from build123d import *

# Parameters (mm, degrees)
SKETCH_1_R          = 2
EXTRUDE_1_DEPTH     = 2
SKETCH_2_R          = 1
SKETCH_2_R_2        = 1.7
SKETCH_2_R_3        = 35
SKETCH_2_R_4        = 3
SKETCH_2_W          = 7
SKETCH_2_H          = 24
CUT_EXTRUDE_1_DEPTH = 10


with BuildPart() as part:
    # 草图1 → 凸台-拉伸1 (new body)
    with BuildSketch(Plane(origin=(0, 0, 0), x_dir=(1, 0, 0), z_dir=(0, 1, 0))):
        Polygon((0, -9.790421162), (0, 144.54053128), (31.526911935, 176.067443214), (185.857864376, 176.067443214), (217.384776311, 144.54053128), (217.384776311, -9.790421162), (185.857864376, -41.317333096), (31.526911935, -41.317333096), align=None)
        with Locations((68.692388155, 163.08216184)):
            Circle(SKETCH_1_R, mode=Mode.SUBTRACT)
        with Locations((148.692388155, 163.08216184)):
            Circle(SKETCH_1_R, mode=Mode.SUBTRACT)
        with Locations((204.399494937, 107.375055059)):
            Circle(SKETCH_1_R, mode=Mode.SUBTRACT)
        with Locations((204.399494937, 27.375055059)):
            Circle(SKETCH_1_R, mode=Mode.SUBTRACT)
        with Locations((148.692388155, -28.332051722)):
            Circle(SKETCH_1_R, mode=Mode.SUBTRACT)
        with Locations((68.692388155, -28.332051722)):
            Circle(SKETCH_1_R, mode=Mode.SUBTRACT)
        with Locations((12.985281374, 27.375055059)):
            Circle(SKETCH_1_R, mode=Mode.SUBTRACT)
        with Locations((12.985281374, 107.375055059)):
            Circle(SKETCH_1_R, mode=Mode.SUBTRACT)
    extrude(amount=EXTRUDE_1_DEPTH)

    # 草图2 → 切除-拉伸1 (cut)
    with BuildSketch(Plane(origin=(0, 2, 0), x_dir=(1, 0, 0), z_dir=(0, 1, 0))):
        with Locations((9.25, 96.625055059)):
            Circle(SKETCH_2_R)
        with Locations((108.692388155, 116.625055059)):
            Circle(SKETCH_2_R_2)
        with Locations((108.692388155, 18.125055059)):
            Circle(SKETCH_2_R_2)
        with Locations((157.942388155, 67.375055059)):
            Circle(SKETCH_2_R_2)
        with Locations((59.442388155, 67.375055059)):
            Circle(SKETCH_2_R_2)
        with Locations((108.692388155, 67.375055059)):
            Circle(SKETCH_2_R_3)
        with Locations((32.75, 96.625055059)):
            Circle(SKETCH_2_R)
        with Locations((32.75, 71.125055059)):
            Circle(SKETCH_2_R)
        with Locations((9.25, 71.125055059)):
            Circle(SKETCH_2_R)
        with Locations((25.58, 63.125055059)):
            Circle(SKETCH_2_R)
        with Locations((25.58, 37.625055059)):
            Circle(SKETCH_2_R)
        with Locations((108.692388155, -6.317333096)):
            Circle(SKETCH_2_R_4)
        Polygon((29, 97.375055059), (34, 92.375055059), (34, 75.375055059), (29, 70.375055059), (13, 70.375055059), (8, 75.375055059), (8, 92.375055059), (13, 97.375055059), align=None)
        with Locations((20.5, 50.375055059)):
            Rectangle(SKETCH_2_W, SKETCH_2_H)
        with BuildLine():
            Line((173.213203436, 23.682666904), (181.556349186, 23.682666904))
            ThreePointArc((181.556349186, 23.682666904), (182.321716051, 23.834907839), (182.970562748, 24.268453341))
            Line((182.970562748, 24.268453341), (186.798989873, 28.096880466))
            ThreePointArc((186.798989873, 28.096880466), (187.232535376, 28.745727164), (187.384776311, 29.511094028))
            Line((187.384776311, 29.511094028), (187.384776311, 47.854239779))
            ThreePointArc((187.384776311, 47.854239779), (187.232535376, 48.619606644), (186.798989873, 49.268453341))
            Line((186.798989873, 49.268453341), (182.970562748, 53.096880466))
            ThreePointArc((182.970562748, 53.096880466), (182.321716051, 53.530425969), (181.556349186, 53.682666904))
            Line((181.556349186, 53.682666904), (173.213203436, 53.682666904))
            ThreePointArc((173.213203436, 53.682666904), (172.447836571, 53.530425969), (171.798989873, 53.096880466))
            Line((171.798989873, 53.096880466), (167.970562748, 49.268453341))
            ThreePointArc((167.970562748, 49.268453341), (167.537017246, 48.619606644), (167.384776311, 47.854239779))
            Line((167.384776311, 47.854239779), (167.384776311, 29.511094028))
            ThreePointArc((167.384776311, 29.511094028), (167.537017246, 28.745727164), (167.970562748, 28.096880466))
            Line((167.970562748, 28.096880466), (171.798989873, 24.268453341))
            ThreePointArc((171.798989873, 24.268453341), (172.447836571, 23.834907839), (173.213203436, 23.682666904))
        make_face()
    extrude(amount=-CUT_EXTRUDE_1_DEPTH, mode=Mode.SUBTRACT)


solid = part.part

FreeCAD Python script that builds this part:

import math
import FreeCAD as App
import Part
import Sketcher

V = App.Vector


def add_polygon(sketch, points):
    """Adds a closed chain of lines whose ends are joined by coincident constraints."""
    first, n = sketch.GeometryCount, len(points)
    for a, b in zip(points, points[1:] + points[:1]):
        sketch.addGeometry(Part.LineSegment(App.Vector(*a, 0), App.Vector(*b, 0)), False)
    for i in range(n):
        sketch.addConstraint(Sketcher.Constraint("Coincident", first + i, 2, first + (i + 1) % n, 1))

doc = App.newDocument("Part")
body = doc.addObject("PartDesign::Body", "Body")

# Sketch on XZ plane
sketch1 = body.newObject("Sketcher::SketchObject", "Sketch")
sketch1.AttachmentSupport = (doc.getObject("XZ_Plane"), [""])
sketch1.MapMode = "FlatFace"
add_polygon(sketch1, [(0, -144.5), (0, 9.8), (31.5, 41.3), (185.9, 41.3), (217.4, 9.8), (217.4, -144.5), (185.9, -176.1), (31.5, -176.1)])  # lines 0-7
sketch1.addGeometry(Part.Circle(V(148.7, 28.3, 0), V(0, 0, 1), 2), False)  # 8
sketch1.addGeometry(Part.Circle(V(204.4, -27.4, 0), V(0, 0, 1), 2), False)  # 9
sketch1.addGeometry(Part.Circle(V(68.7, 28.3, 0), V(0, 0, 1), 2), False)  # 10
sketch1.addGeometry(Part.Circle(V(13, -27.4, 0), V(0, 0, 1), 2), False)  # 11
sketch1.addGeometry(Part.Circle(V(204.4, -107.4, 0), V(0, 0, 1), 2), False)  # 12
sketch1.addGeometry(Part.Circle(V(148.7, -163.1, 0), V(0, 0, 1), 2), False)  # 13
sketch1.addGeometry(Part.Circle(V(13, -107.4, 0), V(0, 0, 1), 2), False)  # 14
sketch1.addGeometry(Part.Circle(V(68.7, -163.1, 0), V(0, 0, 1), 2), False)  # 15
sketch1.addConstraint(Sketcher.Constraint("Vertical", 0))
sketch1.addConstraint(Sketcher.Constraint("Horizontal", 2))
sketch1.addConstraint(Sketcher.Constraint("Vertical", 4))
sketch1.addConstraint(Sketcher.Constraint("Horizontal", 6))
sketch1.addConstraint(Sketcher.Constraint("Equal", 8, 9))
sketch1.addConstraint(Sketcher.Constraint("Equal", 9, 10))
sketch1.addConstraint(Sketcher.Constraint("Equal", 10, 11))
sketch1.addConstraint(Sketcher.Constraint("Equal", 11, 12))
sketch1.addConstraint(Sketcher.Constraint("Equal", 12, 13))
sketch1.addConstraint(Sketcher.Constraint("Equal", 13, 14))
sketch1.addConstraint(Sketcher.Constraint("Equal", 14, 15))
sketch1.addConstraint(Sketcher.Constraint("PointOnObject", 0, 2, -2))
sketch1.addConstraint(Sketcher.Constraint("Perpendicular", 1, 3))
sketch1.addConstraint(Sketcher.Constraint("Perpendicular", 3, 5))
sketch1.addConstraint(Sketcher.Constraint("Perpendicular", 5, 7))
sketch1.addConstraint(Sketcher.Constraint("Horizontal", 8, 3, 10, 3))
sketch1.addConstraint(Sketcher.Constraint("Horizontal", 9, 3, 11, 3))
sketch1.addConstraint(Sketcher.Constraint("Horizontal", 12, 3, 14, 3))
sketch1.addConstraint(Sketcher.Constraint("Horizontal", 13, 3, 15, 3))
sketch1.addConstraint(Sketcher.Constraint("Horizontal", 0, 2, 3, 2))
sketch1.addConstraint(Sketcher.Constraint("Horizontal", 4, 2, 7, 2))
sketch1.addConstraint(Sketcher.Constraint("Vertical", 9, 3, 12, 3))
sketch1.addConstraint(Sketcher.Constraint("Vertical", 8, 3, 13, 3))
sketch1.addConstraint(Sketcher.Constraint("Vertical", 11, 3, 14, 3))
sketch1.addConstraint(Sketcher.Constraint("Vertical", 10, 3, 15, 3))
sketch1.addConstraint(Sketcher.Constraint("Vertical", 2, 2, 5, 2))
sketch1.addConstraint(Sketcher.Constraint("Vertical", 1, 2, 6, 2))
sketch1.addConstraint(Sketcher.Constraint("Equal", 6, 0))
sketch1.addConstraint(Sketcher.Constraint("Diameter", 8, 4.0))
sketch1.addConstraint(Sketcher.Constraint("DistanceX", 10, 3, 8, 3, 80.0))
sketch1.addConstraint(Sketcher.Constraint("DistanceY", 12, 3, 9, 3, 80.0))
sketch1.addConstraint(Sketcher.Constraint("DistanceX", 2, 1, 2, 2, 154.330952))
sketch1.addConstraint(Sketcher.Constraint("DistanceX", -1, 1, 8, 3, 148.692388))
sketch1.addConstraint(Sketcher.Constraint("DistanceY", -1, 1, 8, 3, 28.332052))
sketch1.addConstraint(Sketcher.Constraint("DistanceX", -1, 1, 11, 3, 12.985281))
sketch1.addConstraint(Sketcher.Constraint("DistanceY", 13, 3, -1, 1, 163.082162))
sketch1.addConstraint(Sketcher.Constraint("DistanceY", -1, 1, 0, 2, 9.790421))
sketch1.addConstraint(Sketcher.Constraint("DistanceX", -1, 1, 1, 2, 31.526912))
sketch1.addConstraint(Sketcher.Constraint("DistanceY", 11, 3, 1, 2, 68.692388))
sketch1.addConstraint(Sketcher.Constraint("DistanceX", 2, 2, 9, 3, 18.541631))
pad1 = body.newObject("PartDesign::Pad", "Pad")
pad1.Profile = sketch1
pad1.Length = 2
pad1.Reversed = True

# Sketch on XZ plane
sketch2 = body.newObject("Sketcher::SketchObject", "Sketch001")
sketch2.AttachmentSupport = (doc.getObject("XZ_Plane"), [""])
sketch2.MapMode = "FlatFace"
sketch2.AttachmentOffset = App.Placement(V(0, 0, -2), App.Rotation())
sketch2.addGeometry(Part.Circle(V(9.2, -96.6, 0), V(0, 0, 1), 1), False)  # 0
sketch2.addGeometry(Part.Circle(V(108.7, -116.6, 0), V(0, 0, 1), 1.7), False)  # 1
sketch2.addGeometry(Part.Circle(V(108.7, -18.1, 0), V(0, 0, 1), 1.7), False)  # 2
sketch2.addGeometry(Part.Circle(V(157.9, -67.4, 0), V(0, 0, 1), 1.7), False)  # 3
sketch2.addGeometry(Part.Circle(V(59.4, -67.4, 0), V(0, 0, 1), 1.7), False)  # 4
sketch2.addGeometry(Part.Circle(V(108.7, -67.4, 0), V(0, 0, 1), 35), False)  # 5
sketch2.addGeometry(Part.Circle(V(32.8, -96.6, 0), V(0, 0, 1), 1), False)  # 6
sketch2.addGeometry(Part.Circle(V(32.8, -71.1, 0), V(0, 0, 1), 1), False)  # 7
sketch2.addGeometry(Part.Circle(V(9.2, -71.1, 0), V(0, 0, 1), 1), False)  # 8
sketch2.addGeometry(Part.Circle(V(25.6, -63.1, 0), V(0, 0, 1), 1), False)  # 9
sketch2.addGeometry(Part.Circle(V(25.6, -37.6, 0), V(0, 0, 1), 1), False)  # 10
sketch2.addGeometry(Part.Circle(V(108.7, 6.3, 0), V(0, 0, 1), 3), False)  # 11
add_polygon(sketch2, [(34, -92.4), (29, -97.4), (13, -97.4), (8, -92.4), (8, -75.4), (13, -70.4), (29, -70.4), (34, -75.4)])  # lines 12-19
add_polygon(sketch2, [(17, -62.4), (17, -38.4), (24, -38.4), (24, -62.4)])  # lines 20-23
sketch2.addGeometry(Part.LineSegment(V(173.2, -23.7, 0), V(181.6, -23.7, 0)), False)  # 24
sketch2.addGeometry(Part.ArcOfCircle(Part.Circle(V(181.6, -25.7, 0), V(0, 0, 1), 2), math.radians(45), math.radians(90)), False)  # 25
sketch2.addGeometry(Part.LineSegment(V(183, -24.3, 0), V(186.8, -28.1, 0)), False)  # 26
sketch2.addGeometry(Part.ArcOfCircle(Part.Circle(V(185.4, -29.5, 0), V(0, 0, 1), 2), math.radians(0), math.radians(45)), False)  # 27
sketch2.addGeometry(Part.LineSegment(V(187.4, -29.5, 0), V(187.4, -47.9, 0)), False)  # 28
sketch2.addGeometry(Part.ArcOfCircle(Part.Circle(V(185.4, -47.9, 0), V(0, 0, 1), 2), math.radians(-45), math.radians(0)), False)  # 29
sketch2.addGeometry(Part.LineSegment(V(186.8, -49.3, 0), V(183, -53.1, 0)), False)  # 30
sketch2.addGeometry(Part.ArcOfCircle(Part.Circle(V(181.6, -51.7, 0), V(0, 0, 1), 2), math.radians(-90), math.radians(-45)), False)  # 31
sketch2.addGeometry(Part.LineSegment(V(181.6, -53.7, 0), V(173.2, -53.7, 0)), False)  # 32
sketch2.addGeometry(Part.ArcOfCircle(Part.Circle(V(173.2, -51.7, 0), V(0, 0, 1), 2), math.radians(-135), math.radians(-90)), False)  # 33
sketch2.addGeometry(Part.LineSegment(V(171.8, -53.1, 0), V(168, -49.3, 0)), False)  # 34
sketch2.addGeometry(Part.ArcOfCircle(Part.Circle(V(169.4, -47.9, 0), V(0, 0, 1), 2), math.radians(180), math.radians(225)), False)  # 35
sketch2.addGeometry(Part.LineSegment(V(167.4, -47.9, 0), V(167.4, -29.5, 0)), False)  # 36
sketch2.addGeometry(Part.ArcOfCircle(Part.Circle(V(169.4, -29.5, 0), V(0, 0, 1), 2), math.radians(135), math.radians(180)), False)  # 37
sketch2.addGeometry(Part.LineSegment(V(168, -28.1, 0), V(171.8, -24.3, 0)), False)  # 38
sketch2.addGeometry(Part.ArcOfCircle(Part.Circle(V(173.2, -25.7, 0), V(0, 0, 1), 2), math.radians(90), math.radians(135)), False)  # 39
sketch2.addConstraint(Sketcher.Constraint("Tangent", 24, 2, 25, 2))
sketch2.addConstraint(Sketcher.Constraint("Tangent", 25, 1, 26, 1))
sketch2.addConstraint(Sketcher.Constraint("Tangent", 26, 2, 27, 2))
sketch2.addConstraint(Sketcher.Constraint("Tangent", 27, 1, 28, 1))
sketch2.addConstraint(Sketcher.Constraint("Tangent", 28, 2, 29, 2))
sketch2.addConstraint(Sketcher.Constraint("Tangent", 29, 1, 30, 1))
sketch2.addConstraint(Sketcher.Constraint("Tangent", 30, 2, 31, 2))
sketch2.addConstraint(Sketcher.Constraint("Tangent", 31, 1, 32, 1))
sketch2.addConstraint(Sketcher.Constraint("Tangent", 32, 2, 33, 2))
sketch2.addConstraint(Sketcher.Constraint("Tangent", 33, 1, 34, 1))
sketch2.addConstraint(Sketcher.Constraint("Tangent", 34, 2, 35, 2))
sketch2.addConstraint(Sketcher.Constraint("Tangent", 35, 1, 36, 1))
sketch2.addConstraint(Sketcher.Constraint("Tangent", 36, 2, 37, 2))
sketch2.addConstraint(Sketcher.Constraint("Tangent", 37, 1, 38, 1))
sketch2.addConstraint(Sketcher.Constraint("Tangent", 38, 2, 39, 2))
sketch2.addConstraint(Sketcher.Constraint("Tangent", 39, 1, 24, 1))
sketch2.addConstraint(Sketcher.Constraint("Horizontal", 13))
sketch2.addConstraint(Sketcher.Constraint("Vertical", 15))
sketch2.addConstraint(Sketcher.Constraint("Horizontal", 17))
sketch2.addConstraint(Sketcher.Constraint("Vertical", 19))
sketch2.addConstraint(Sketcher.Constraint("Vertical", 20))
sketch2.addConstraint(Sketcher.Constraint("Horizontal", 21))
sketch2.addConstraint(Sketcher.Constraint("Vertical", 22))
sketch2.addConstraint(Sketcher.Constraint("Horizontal", 23))
sketch2.addConstraint(Sketcher.Constraint("Horizontal", 24))
sketch2.addConstraint(Sketcher.Constraint("Vertical", 28))
sketch2.addConstraint(Sketcher.Constraint("Horizontal", 32))
sketch2.addConstraint(Sketcher.Constraint("Vertical", 36))
sketch2.addConstraint(Sketcher.Constraint("Equal", 1, 2))
sketch2.addConstraint(Sketcher.Constraint("Equal", 2, 3))
sketch2.addConstraint(Sketcher.Constraint("Equal", 3, 4))
sketch2.addConstraint(Sketcher.Constraint("Equal", 0, 6))
sketch2.addConstraint(Sketcher.Constraint("Equal", 6, 7))
sketch2.addConstraint(Sketcher.Constraint("Equal", 7, 8))
sketch2.addConstraint(Sketcher.Constraint("Equal", 8, 9))
sketch2.addConstraint(Sketcher.Constraint("Equal", 9, 10))
sketch2.addConstraint(Sketcher.Constraint("Equal", 25, 27))
sketch2.addConstraint(Sketcher.Constraint("Equal", 27, 29))
sketch2.addConstraint(Sketcher.Constraint("Equal", 29, 31))
sketch2.addConstraint(Sketcher.Constraint("Equal", 31, 33))
sketch2.addConstraint(Sketcher.Constraint("Equal", 33, 35))
sketch2.addConstraint(Sketcher.Constraint("Equal", 35, 37))
sketch2.addConstraint(Sketcher.Constraint("Equal", 37, 39))
sketch2.addConstraint(Sketcher.Constraint("Perpendicular", 12, 14))
sketch2.addConstraint(Sketcher.Constraint("Perpendicular", 14, 16))
sketch2.addConstraint(Sketcher.Constraint("Perpendicular", 16, 18))
sketch2.addConstraint(Sketcher.Constraint("Parallel", 18, 26))
sketch2.addConstraint(Sketcher.Constraint("Perpendicular", 26, 30))
sketch2.addConstraint(Sketcher.Constraint("Perpendicular", 30, 34))
sketch2.addConstraint(Sketcher.Constraint("Perpendicular", 34, 38))
sketch2.addConstraint(Sketcher.Constraint("Horizontal", 3, 3, 4, 3))
sketch2.addConstraint(Sketcher.Constraint("Horizontal", 4, 3, 5, 3))
sketch2.addConstraint(Sketcher.Constraint("Horizontal", 0, 3, 6, 3))
sketch2.addConstraint(Sketcher.Constraint("Horizontal", 7, 3, 8, 3))
sketch2.addConstraint(Sketcher.Constraint("Horizontal", 29, 3, 35, 3))
sketch2.addConstraint(Sketcher.Constraint("Horizontal", 27, 3, 37, 3))
sketch2.addConstraint(Sketcher.Constraint("Horizontal", 15, 2, 18, 2))
sketch2.addConstraint(Sketcher.Constraint("Horizontal", 14, 2, 19, 2))
sketch2.addConstraint(Sketcher.Constraint("Horizontal", 30, 2, 33, 1))
sketch2.addConstraint(Sketcher.Constraint("Vertical", 1, 3, 2, 3))
sketch2.addConstraint(Sketcher.Constraint("Vertical", 2, 3, 5, 3))
sketch2.addConstraint(Sketcher.Constraint("Vertical", 6, 3, 7, 3))
sketch2.addConstraint(Sketcher.Constraint("Vertical", 0, 3, 8, 3))
sketch2.addConstraint(Sketcher.Constraint("Vertical", 9, 3, 10, 3))
sketch2.addConstraint(Sketcher.Constraint("Vertical", 5, 3, 11, 3))
sketch2.addConstraint(Sketcher.Constraint("Vertical", 25, 3, 31, 3))
sketch2.addConstraint(Sketcher.Constraint("Vertical", 13, 2, 16, 2))
sketch2.addConstraint(Sketcher.Constraint("Diameter", 0, 2.0))
sketch2.addConstraint(Sketcher.Constraint("Diameter", 5, 70.0))
sketch2.addConstraint(Sketcher.Constraint("Diameter", 11, 6.0))
sketch2.addConstraint(Sketcher.Constraint("Radius", 25, 2.0))
sketch2.addConstraint(Sketcher.Constraint("Diameter", 1, 3.4))
sketch2.addConstraint(Sketcher.Constraint("DistanceX", 13, 2, 13, 1, 16.0))
sketch2.addConstraint(Sketcher.Constraint("DistanceX", 21, 1, 21, 2, 7.0))
sketch2.addConstraint(Sketcher.Constraint("DistanceY", 15, 1, 15, 2, 17.0))
sketch2.addConstraint(Sketcher.Constraint("DistanceY", 20, 1, 20, 2, 24.0))
sketch2.addConstraint(Sketcher.Constraint("DistanceX", -1, 1, 12, 2, 29.0))
sketch2.addConstraint(Sketcher.Constraint("DistanceX", -1, 1, 14, 2, 8.0))
sketch2.addConstraint(Sketcher.Constraint("DistanceX", -1, 1, 20, 2, 17.0))
sketch2.addConstraint(Sketcher.Constraint("DistanceY", 1, 3, 0, 3, 20.0))
sketch2.addConstraint(Sketcher.Constraint("DistanceY", 7, 3, 9, 3, 8.0))
sketch2.addConstraint(Sketcher.Constraint("DistanceY", 6, 3, 10, 3, 59.0))
sketch2.addConstraint(Sketcher.Constraint("DistanceY", 25, 3, 11, 3, 32.0))
sketch2.addConstraint(Sketcher.Constraint("DistanceY", 31, 3, 25, 3, 26.0))
sketch2.addConstraint(Sketcher.Constraint("DistanceX", 35, 3, 29, 3, 16.0))
sketch2.addConstraint(Sketcher.Constraint("DistanceY", 16, 2, 20, 2, 32.0))
sketch2.addConstraint(Sketcher.Constraint("DistanceY", 1, 3, 2, 3, 98.5))
sketch2.addConstraint(Sketcher.Constraint("DistanceX", 4, 3, 3, 3, 98.5))
sketch2.addConstraint(Sketcher.Constraint("DistanceX", 0, 3, 6, 3, 23.5))
sketch2.addConstraint(Sketcher.Constraint("DistanceY", 6, 3, 7, 3, 25.5))
sketch2.addConstraint(Sketcher.Constraint("DistanceX", -1, 1, 0, 3, 9.25))
sketch2.addConstraint(Sketcher.Constraint("DistanceX", -1, 1, 9, 3, 25.58))
sketch2.addConstraint(Sketcher.Constraint("DistanceX", 1, 3, 3, 3, 49.25))
sketch2.addConstraint(Sketcher.Constraint("DistanceY", 1, 3, 3, 3, 49.25))
sketch2.addConstraint(Sketcher.Constraint("DistanceY", 12, 2, 6, 3, 0.75))
sketch2.addConstraint(Sketcher.Constraint("DistanceX", 24, 1, 24, 2, 8.343146))
sketch2.addConstraint(Sketcher.Constraint("DistanceX", -1, 1, 1, 3, 108.692388))
sketch2.addConstraint(Sketcher.Constraint("DistanceX", -1, 1, 25, 3, 181.556349))
sketch2.addConstraint(Sketcher.Constraint("DistanceY", 29, 3, -1, 1, 47.85424))
sketch2.addConstraint(Sketcher.Constraint("DistanceY", 2, 3, 11, 3, 24.442388))
pocket1 = body.newObject("PartDesign::Pocket", "Pocket")
pocket1.Profile = sketch2
pocket1.Length = 10
pocket1.Reversed = True

doc.recompute()
